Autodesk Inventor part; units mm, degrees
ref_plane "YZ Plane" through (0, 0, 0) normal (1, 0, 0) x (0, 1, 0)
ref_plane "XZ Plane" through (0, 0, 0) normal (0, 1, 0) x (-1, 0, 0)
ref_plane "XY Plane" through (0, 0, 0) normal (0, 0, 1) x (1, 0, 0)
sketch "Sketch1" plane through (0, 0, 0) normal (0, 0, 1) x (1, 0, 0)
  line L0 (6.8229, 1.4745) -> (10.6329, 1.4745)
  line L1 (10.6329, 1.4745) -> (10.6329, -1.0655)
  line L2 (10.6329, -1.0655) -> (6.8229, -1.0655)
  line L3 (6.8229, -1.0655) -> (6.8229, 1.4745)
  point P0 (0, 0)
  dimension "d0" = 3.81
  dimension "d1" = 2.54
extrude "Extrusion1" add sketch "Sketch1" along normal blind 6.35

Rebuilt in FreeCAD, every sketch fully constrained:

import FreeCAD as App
import Part
import Sketcher
Q = App.Units.Quantity

doc = App.newDocument("Part")
body = doc.addObject("PartDesign::Body", "Body")

sketch1 = body.newObject("Sketcher::SketchObject", "Sketch")
sketch1.AttachmentSupport = (doc.getObject("XY_Plane"), [""])
sketch1.MapMode = "FlatFace"
sketch1.addGeometry([
    Part.LineSegment(App.Vector(10.6329, 1.4745, 0), App.Vector(6.8229, 1.4745, 0)),
    Part.LineSegment(App.Vector(6.8229, 1.4745, 0), App.Vector(6.8229, -1.0655, 0)),
    Part.LineSegment(App.Vector(6.8229, -1.0655, 0), App.Vector(10.6329, -1.0655, 0)),
    Part.LineSegment(App.Vector(10.6329, -1.0655, 0), App.Vector(10.6329, 1.4745, 0)),
], False)
sketch1.addConstraint([
    Sketcher.Constraint("Coincident", 0, 2, 1, 1),
    Sketcher.Constraint("Coincident", 1, 2, 2, 1),
    Sketcher.Constraint("Coincident", 2, 2, 3, 1),
    Sketcher.Constraint("Coincident", 3, 2, 0, 1),
    Sketcher.Constraint("Horizontal", 0),
    Sketcher.Constraint("Vertical", 1),
    Sketcher.Constraint("Horizontal", 2),
    Sketcher.Constraint("Vertical", 3),
    Sketcher.Constraint("DistanceY", 1, 2, 1, 1, Q("0.1 in")),
    Sketcher.Constraint("DistanceX", 0, 2, 0, 1, Q("0.15 in")),
    Sketcher.Constraint("DistanceX", -1, 1, 0, 2, 6.823),
    Sketcher.Constraint("DistanceY", -1, 1, 0, 2, 1.4745),
])
pad1 = body.newObject("PartDesign::Pad", "Pad")
pad1.Profile = sketch1
pad1.Length = Q("0.25 in")

doc.recompute()
